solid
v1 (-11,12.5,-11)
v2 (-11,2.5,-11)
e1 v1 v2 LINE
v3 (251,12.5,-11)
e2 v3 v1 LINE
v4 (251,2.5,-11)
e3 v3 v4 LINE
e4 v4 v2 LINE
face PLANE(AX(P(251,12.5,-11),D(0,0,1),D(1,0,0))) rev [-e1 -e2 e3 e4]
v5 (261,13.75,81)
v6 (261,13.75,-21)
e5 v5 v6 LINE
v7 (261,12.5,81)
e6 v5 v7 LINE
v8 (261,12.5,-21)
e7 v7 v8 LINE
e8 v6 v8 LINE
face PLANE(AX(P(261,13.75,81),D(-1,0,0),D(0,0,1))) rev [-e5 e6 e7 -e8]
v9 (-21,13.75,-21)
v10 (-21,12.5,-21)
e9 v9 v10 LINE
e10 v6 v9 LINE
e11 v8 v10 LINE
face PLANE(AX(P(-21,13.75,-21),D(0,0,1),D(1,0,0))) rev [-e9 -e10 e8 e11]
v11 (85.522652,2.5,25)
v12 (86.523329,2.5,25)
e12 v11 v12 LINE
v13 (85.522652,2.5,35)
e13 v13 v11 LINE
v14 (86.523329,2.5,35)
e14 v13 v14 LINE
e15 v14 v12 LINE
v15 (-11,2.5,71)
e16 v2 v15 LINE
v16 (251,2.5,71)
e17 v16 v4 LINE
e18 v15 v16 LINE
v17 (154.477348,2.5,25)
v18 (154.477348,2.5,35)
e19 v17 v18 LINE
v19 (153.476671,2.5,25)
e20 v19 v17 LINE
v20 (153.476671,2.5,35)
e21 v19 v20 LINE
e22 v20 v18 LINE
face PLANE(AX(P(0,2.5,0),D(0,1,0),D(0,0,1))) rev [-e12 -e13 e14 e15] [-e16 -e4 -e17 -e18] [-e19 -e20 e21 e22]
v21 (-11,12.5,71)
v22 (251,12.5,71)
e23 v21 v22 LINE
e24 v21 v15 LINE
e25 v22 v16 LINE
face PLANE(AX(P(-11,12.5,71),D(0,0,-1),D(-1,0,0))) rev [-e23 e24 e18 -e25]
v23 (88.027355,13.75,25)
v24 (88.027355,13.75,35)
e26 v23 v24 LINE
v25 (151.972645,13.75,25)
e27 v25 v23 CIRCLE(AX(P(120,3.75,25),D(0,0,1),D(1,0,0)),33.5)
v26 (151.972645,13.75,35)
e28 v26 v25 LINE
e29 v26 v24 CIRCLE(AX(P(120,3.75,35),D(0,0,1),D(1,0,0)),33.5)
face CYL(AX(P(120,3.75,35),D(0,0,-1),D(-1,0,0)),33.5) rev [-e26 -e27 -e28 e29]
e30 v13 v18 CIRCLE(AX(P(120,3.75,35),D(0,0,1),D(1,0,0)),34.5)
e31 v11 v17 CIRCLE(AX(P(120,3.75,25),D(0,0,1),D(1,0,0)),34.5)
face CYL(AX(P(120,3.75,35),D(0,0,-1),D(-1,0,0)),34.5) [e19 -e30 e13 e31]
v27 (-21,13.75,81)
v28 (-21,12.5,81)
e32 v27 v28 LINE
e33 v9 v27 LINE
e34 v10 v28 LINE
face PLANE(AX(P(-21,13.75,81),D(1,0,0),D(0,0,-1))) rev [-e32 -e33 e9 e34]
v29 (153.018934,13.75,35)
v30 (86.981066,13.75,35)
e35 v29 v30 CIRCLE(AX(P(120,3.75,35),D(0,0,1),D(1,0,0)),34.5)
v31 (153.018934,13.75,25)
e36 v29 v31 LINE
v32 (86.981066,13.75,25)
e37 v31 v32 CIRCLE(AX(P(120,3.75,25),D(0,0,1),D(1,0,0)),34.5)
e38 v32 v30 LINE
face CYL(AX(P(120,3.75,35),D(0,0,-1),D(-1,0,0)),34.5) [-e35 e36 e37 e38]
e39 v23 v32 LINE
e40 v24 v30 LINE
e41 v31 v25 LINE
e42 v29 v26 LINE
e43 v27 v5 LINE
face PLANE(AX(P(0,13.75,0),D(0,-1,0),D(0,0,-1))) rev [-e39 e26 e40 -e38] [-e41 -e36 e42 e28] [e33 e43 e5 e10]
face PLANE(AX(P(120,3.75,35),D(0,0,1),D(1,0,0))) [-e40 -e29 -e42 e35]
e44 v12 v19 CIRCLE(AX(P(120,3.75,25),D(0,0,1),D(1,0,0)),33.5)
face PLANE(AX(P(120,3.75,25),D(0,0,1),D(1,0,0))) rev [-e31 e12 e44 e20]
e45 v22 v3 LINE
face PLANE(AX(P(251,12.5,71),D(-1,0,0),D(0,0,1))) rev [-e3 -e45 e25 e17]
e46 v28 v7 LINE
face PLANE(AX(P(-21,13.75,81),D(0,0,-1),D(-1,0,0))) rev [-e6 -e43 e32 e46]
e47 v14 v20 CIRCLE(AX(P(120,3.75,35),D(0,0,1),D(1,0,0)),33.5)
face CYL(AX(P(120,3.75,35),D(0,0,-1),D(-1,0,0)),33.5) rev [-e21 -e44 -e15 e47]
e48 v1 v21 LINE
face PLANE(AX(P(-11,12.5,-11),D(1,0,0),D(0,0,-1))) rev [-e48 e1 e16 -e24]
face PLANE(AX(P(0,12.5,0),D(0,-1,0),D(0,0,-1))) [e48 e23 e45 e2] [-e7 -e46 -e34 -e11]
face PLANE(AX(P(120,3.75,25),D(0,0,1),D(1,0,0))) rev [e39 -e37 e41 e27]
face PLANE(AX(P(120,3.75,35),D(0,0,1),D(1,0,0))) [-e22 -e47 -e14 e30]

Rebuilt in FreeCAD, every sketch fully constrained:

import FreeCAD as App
import Part
import Sketcher

doc = App.newDocument("Part")
params = doc.addObject("Spreadsheet::Sheet", "Params")
for row, (alias, value) in enumerate([
    ("sketch1_width", "262 mm"),
    ("sketch1_height", "82 mm"),
    ("pad1_length", "10 mm"),
    ("sketch2_width", "282 mm"),
    ("sketch2_height", "102 mm"),
    ("pad2_length", "1.25 mm"),
    ("sketch3_diameter", "69 mm"),
    ("sketch3_diameter2", "67 mm"),
    ("pad3_length", "10 mm"),
], start=1):
    params.set(f"A{row}", alias)
    params.set(f"B{row}", "=" + value)
    params.setAlias(f"B{row}", alias)

body = doc.addObject("PartDesign::Body", "Body")

# Sketch on XZ plane
sketch1 = body.newObject("Sketcher::SketchObject", "Sketch")
sketch1.AttachmentSupport = (doc.getObject("XZ_Plane"), [""])
sketch1.MapMode = "FlatFace"
sketch1.AttachmentOffset = App.Placement(App.Vector(0, 0, -2.5), App.Rotation())
sketch1.addGeometry(Part.LineSegment(App.Vector(-11, -11, 0), App.Vector(-11, 71, 0)), False)
sketch1.addGeometry(Part.LineSegment(App.Vector(-11, 71, 0), App.Vector(251, 71, 0)), False)
sketch1.addGeometry(Part.LineSegment(App.Vector(251, 71, 0), App.Vector(251, -11, 0)), False)
sketch1.addGeometry(Part.LineSegment(App.Vector(251, -11, 0), App.Vector(-11, -11, 0)), False)
sketch1.addConstraint(Sketcher.Constraint("Coincident", 0, 2, 1, 1))
sketch1.addConstraint(Sketcher.Constraint("Coincident", 1, 2, 2, 1))
sketch1.addConstraint(Sketcher.Constraint("Coincident", 2, 2, 3, 1))
sketch1.addConstraint(Sketcher.Constraint("Coincident", 3, 2, 0, 1))
sketch1.addConstraint(Sketcher.Constraint("Vertical", 0))
sketch1.addConstraint(Sketcher.Constraint("Horizontal", 1))
sketch1.addConstraint(Sketcher.Constraint("Vertical", 2))
sketch1.addConstraint(Sketcher.Constraint("Horizontal", 3))
sketch1.addConstraint(Sketcher.Constraint("DistanceX", 1, 1, 1, 2, 262.0))
sketch1.addConstraint(Sketcher.Constraint("DistanceY", 0, 1, 0, 2, 82.0))
sketch1.addConstraint(Sketcher.Constraint("DistanceX", 0, 2, -1, 1, 11.0))
sketch1.addConstraint(Sketcher.Constraint("DistanceY", -1, 1, 0, 2, 71.0))
sketch1.setExpression("Constraints[8]", "Params.sketch1_width")
sketch1.setExpression("Constraints[9]", "Params.sketch1_height")
pad1 = body.newObject("PartDesign::Pad", "Pad")
pad1.Profile = sketch1
pad1.setExpression("Length", "Params.pad1_length")
pad1.Reversed = True

# Sketch on XZ plane
sketch2 = body.newObject("Sketcher::SketchObject", "Sketch001")
sketch2.AttachmentSupport = (doc.getObject("XZ_Plane"), [""])
sketch2.MapMode = "FlatFace"
sketch2.AttachmentOffset = App.Placement(App.Vector(0, 0, -12.5), App.Rotation())
sketch2.addGeometry(Part.LineSegment(App.Vector(-21, -21, 0), App.Vector(-21, 81, 0)), False)
sketch2.addGeometry(Part.LineSegment(App.Vector(-21, 81, 0), App.Vector(261, 81, 0)), False)
sketch2.addGeometry(Part.LineSegment(App.Vector(261, 81, 0), App.Vector(261, -21, 0)), False)
sketch2.addGeometry(Part.LineSegment(App.Vector(261, -21, 0), App.Vector(-21, -21, 0)), False)
sketch2.addConstraint(Sketcher.Constraint("Coincident", 0, 2, 1, 1))
sketch2.addConstraint(Sketcher.Constraint("Coincident", 1, 2, 2, 1))
sketch2.addConstraint(Sketcher.Constraint("Coincident", 2, 2, 3, 1))
sketch2.addConstraint(Sketcher.Constraint("Coincident", 3, 2, 0, 1))
sketch2.addConstraint(Sketcher.Constraint("Vertical", 0))
sketch2.addConstraint(Sketcher.Constraint("Horizontal", 1))
sketch2.addConstraint(Sketcher.Constraint("Vertical", 2))
sketch2.addConstraint(Sketcher.Constraint("Horizontal", 3))
sketch2.addConstraint(Sketcher.Constraint("DistanceX", 1, 1, 1, 2, 282.0))
sketch2.addConstraint(Sketcher.Constraint("DistanceY", 0, 1, 0, 2, 102.0))
sketch2.addConstraint(Sketcher.Constraint("DistanceX", 0, 2, -1, 1, 21.0))
sketch2.addConstraint(Sketcher.Constraint("DistanceY", -1, 1, 0, 2, 81.0))
sketch2.setExpression("Constraints[8]", "Params.sketch2_width")
sketch2.setExpression("Constraints[9]", "Params.sketch2_height")
pad2 = body.newObject("PartDesign::Pad", "Pad001")
pad2.Profile = sketch2
pad2.setExpression("Length", "Params.pad2_length")
pad2.Reversed = True

# Sketch on XY plane
sketch3 = body.newObject("Sketcher::SketchObject", "Sketch002")
sketch3.AttachmentSupport = (doc.getObject("XY_Plane"), [""])
sketch3.MapMode = "FlatFace"
sketch3.AttachmentOffset = App.Placement(App.Vector(0, 0, 30), App.Rotation())
sketch3.addGeometry(Part.Circle(App.Vector(120, 4, 0), App.Vector(0, 0, 1), 34), False)
sketch3.addGeometry(Part.Circle(App.Vector(120, 4, 0), App.Vector(0, 0, 1), 34), False)
sketch3.addConstraint(Sketcher.Constraint("Coincident", 1, 3, 0, 3))
sketch3.addConstraint(Sketcher.Constraint("Diameter", 0, 69.0))
sketch3.addConstraint(Sketcher.Constraint("Diameter", 1, 67.0))
sketch3.addConstraint(Sketcher.Constraint("DistanceX", -1, 1, 0, 3, 120.0))
sketch3.addConstraint(Sketcher.Constraint("DistanceY", -1, 1, 0, 3, 3.75))
sketch3.setExpression("Constraints[1]", "Params.sketch3_diameter")
sketch3.setExpression("Constraints[2]", "Params.sketch3_diameter2")
pad3 = body.newObject("PartDesign::Pad", "Pad002")
pad3.Profile = sketch3
pad3.setExpression("Length", "Params.pad3_length")
pad3.Midplane = True

doc.recompute()
